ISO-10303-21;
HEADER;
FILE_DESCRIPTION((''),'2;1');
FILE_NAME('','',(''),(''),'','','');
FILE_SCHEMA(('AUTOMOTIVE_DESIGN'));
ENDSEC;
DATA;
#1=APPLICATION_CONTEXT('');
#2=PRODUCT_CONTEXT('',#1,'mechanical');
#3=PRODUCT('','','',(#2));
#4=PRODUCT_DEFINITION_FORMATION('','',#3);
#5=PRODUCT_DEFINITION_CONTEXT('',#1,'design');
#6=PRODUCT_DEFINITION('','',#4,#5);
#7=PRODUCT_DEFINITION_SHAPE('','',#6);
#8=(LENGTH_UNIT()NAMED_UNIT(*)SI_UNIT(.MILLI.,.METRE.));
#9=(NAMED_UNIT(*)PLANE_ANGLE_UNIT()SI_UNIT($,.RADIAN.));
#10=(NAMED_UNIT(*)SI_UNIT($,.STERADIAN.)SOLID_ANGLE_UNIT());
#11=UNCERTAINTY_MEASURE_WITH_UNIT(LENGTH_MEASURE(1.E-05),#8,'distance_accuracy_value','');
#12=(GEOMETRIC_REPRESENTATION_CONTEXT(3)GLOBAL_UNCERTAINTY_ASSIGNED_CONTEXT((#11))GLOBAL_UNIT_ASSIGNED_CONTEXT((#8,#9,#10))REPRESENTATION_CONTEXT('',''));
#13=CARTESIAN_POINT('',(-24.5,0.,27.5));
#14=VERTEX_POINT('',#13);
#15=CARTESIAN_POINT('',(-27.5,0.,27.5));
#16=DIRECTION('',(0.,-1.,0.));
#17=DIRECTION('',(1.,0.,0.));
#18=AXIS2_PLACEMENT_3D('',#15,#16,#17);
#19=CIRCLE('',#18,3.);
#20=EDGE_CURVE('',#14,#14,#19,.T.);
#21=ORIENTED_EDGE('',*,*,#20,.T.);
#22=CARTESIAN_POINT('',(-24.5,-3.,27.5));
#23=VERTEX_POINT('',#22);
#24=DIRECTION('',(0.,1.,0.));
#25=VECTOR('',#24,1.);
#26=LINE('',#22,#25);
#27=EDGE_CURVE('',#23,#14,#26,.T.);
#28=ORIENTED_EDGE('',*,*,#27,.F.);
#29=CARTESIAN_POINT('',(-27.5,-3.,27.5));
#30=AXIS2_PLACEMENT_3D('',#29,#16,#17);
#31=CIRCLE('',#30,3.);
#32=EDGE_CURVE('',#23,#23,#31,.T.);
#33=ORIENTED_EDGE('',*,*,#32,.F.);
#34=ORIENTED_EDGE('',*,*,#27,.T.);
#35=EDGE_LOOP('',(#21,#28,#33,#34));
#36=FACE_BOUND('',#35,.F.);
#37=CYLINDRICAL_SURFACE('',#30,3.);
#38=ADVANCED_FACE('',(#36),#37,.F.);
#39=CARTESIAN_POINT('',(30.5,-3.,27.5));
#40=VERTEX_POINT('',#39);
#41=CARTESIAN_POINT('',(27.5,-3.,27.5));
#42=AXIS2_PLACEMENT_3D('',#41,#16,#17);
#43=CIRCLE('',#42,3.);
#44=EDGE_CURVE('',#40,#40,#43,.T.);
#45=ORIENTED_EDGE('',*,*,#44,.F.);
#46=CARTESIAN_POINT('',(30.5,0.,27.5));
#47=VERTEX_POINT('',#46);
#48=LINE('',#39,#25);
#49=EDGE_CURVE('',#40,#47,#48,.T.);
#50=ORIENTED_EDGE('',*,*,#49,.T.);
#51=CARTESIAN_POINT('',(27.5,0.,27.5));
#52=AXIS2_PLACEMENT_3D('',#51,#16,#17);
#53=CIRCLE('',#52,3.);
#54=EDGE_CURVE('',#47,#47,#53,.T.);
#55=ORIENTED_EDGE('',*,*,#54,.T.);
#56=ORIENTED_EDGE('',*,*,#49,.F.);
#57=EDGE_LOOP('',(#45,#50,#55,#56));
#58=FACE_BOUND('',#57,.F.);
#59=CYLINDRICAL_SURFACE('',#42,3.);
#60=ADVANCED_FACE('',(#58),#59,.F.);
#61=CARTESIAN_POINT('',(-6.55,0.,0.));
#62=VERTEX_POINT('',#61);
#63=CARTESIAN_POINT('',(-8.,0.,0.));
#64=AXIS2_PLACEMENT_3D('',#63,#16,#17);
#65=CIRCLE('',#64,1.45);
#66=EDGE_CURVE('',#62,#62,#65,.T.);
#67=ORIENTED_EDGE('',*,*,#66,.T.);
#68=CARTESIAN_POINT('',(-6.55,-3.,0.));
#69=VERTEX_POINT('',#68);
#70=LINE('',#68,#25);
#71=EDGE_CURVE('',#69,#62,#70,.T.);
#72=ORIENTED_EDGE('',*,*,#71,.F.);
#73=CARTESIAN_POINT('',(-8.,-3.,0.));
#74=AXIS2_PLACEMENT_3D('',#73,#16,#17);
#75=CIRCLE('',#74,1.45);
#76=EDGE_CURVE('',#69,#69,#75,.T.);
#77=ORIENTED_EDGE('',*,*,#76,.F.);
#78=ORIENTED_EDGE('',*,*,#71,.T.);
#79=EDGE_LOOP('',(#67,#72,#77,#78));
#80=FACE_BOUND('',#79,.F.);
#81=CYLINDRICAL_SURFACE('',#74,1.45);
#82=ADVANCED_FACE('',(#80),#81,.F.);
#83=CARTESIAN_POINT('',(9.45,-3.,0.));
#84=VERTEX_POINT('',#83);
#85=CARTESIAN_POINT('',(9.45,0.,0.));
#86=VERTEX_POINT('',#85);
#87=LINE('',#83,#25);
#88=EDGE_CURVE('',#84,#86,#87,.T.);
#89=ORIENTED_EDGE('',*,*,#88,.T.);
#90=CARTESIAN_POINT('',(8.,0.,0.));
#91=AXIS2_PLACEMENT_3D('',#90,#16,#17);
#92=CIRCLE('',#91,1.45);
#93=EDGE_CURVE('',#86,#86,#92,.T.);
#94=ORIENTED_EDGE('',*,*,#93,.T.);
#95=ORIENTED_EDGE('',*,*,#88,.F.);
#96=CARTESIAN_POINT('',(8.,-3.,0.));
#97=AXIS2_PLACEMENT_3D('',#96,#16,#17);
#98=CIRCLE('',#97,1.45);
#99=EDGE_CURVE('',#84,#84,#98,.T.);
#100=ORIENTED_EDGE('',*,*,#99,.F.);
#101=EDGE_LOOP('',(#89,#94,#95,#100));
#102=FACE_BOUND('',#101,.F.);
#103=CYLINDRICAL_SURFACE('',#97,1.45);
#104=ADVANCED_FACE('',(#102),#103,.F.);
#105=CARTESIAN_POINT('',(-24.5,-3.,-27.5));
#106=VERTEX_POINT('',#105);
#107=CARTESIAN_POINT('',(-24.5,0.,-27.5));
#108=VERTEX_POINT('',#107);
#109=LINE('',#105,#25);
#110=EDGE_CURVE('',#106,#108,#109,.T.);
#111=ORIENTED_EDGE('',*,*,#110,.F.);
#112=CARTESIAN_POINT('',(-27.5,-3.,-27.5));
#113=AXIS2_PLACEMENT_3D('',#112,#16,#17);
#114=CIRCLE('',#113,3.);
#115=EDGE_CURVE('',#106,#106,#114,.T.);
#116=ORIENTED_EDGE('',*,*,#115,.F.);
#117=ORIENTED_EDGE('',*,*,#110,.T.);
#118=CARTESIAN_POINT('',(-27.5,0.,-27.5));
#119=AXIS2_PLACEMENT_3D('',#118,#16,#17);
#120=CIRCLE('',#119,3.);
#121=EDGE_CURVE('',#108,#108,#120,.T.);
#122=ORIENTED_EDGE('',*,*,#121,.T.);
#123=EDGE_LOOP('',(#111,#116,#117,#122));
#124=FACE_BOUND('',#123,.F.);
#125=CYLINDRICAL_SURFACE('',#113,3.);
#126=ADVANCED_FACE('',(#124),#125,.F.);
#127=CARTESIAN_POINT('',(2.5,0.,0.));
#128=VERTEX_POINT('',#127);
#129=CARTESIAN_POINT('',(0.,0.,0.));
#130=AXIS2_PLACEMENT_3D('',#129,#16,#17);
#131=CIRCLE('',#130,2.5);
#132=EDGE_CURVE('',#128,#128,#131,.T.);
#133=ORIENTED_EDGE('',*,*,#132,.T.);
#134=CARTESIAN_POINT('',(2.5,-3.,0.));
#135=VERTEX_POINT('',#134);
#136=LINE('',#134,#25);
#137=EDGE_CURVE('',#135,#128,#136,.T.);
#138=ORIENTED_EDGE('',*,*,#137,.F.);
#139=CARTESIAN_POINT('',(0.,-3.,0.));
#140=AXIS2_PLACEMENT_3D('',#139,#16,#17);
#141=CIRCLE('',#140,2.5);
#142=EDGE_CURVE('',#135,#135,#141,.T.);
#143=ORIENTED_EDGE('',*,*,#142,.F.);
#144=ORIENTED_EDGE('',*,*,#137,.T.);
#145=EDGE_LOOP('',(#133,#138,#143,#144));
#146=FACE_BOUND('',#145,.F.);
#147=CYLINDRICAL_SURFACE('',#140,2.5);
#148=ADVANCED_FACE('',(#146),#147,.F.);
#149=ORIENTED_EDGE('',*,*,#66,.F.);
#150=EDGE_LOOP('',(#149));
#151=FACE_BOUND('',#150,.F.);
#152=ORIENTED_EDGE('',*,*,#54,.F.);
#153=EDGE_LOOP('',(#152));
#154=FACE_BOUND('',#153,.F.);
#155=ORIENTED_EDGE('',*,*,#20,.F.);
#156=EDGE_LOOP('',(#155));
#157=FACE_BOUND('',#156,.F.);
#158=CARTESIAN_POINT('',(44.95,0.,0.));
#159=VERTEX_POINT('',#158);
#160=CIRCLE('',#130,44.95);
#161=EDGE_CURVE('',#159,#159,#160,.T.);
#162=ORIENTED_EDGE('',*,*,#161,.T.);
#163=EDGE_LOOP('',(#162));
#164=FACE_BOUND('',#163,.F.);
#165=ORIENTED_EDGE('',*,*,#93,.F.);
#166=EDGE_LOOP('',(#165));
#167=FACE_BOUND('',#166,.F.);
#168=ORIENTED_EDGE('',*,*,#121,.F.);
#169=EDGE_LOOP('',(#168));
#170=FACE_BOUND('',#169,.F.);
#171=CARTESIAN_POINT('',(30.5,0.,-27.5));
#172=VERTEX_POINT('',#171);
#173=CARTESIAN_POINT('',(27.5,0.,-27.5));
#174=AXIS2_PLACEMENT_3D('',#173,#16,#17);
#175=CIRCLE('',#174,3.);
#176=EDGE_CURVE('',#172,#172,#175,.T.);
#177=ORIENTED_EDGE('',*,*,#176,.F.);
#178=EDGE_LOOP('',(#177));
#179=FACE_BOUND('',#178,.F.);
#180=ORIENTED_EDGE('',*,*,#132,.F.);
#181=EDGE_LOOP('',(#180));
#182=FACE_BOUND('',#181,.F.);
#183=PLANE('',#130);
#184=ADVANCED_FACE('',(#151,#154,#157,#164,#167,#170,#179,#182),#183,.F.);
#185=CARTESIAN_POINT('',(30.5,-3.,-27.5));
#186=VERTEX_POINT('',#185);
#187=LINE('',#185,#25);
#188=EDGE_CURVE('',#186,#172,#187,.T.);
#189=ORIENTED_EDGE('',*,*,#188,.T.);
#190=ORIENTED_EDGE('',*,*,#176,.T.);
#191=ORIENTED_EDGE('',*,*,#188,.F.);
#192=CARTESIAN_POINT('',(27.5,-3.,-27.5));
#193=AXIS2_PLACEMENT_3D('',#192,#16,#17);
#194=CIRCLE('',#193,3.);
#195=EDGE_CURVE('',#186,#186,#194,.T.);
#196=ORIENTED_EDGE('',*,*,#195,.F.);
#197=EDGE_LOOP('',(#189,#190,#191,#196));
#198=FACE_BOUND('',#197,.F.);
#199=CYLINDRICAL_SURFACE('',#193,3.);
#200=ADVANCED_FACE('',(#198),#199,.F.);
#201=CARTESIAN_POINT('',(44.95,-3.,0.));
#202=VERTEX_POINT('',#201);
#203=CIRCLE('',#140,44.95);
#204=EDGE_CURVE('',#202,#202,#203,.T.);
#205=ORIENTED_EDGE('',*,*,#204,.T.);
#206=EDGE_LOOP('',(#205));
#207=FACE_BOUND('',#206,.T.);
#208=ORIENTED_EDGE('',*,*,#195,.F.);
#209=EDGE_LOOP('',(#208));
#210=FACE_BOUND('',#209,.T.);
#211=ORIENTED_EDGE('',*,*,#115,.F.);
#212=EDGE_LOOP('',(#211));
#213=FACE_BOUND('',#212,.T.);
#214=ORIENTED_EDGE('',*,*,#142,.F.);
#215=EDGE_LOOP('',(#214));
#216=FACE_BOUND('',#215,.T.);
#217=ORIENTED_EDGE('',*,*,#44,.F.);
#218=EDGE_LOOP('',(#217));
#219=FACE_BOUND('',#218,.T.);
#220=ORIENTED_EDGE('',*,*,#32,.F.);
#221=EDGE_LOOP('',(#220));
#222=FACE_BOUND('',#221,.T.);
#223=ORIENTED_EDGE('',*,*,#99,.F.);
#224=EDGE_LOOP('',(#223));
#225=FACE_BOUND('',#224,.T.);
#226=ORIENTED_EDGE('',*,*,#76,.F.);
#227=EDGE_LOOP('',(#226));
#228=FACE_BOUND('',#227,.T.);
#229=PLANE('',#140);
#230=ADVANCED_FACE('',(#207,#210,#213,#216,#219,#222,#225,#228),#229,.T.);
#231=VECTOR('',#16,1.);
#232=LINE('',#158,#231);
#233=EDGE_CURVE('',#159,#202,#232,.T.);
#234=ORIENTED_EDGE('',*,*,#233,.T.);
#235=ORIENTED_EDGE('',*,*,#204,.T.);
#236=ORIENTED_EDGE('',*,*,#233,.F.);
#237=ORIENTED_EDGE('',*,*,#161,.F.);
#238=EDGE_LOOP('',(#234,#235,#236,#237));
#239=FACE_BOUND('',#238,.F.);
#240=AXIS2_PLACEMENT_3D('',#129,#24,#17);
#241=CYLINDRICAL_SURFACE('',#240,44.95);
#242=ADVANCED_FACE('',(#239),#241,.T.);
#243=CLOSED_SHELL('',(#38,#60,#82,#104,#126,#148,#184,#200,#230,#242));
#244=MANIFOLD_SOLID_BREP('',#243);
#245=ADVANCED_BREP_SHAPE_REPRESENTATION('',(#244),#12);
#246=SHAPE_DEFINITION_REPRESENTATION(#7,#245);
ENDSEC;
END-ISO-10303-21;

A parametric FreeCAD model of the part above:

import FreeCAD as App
import Part
import Sketcher
from FreeCAD import Vector
Q = App.Units.Quantity

doc = App.newDocument("Part")
body = doc.addObject("PartDesign::Body", "Body")

sketch1 = body.newObject("Sketcher::SketchObject", "Sketch")
sketch1.AttachmentSupport = (doc.getObject("XZ_Plane"), [""])
sketch1.MapMode = "FlatFace"
sketch1.addGeometry(Part.Circle(Vector(0, 0, 0), Vector(0, 0, 1), 45), False)
sketch1.addConstraint([
    Sketcher.Constraint("Coincident", 0, 3, -1, 1),
    Sketcher.Constraint("Diameter", 0, Q("89.9 mm")),
])
pad1 = body.newObject("PartDesign::Pad", "Pad")
pad1.Profile = sketch1
pad1.Length = 3

sketch2 = body.newObject("Sketcher::SketchObject", "Sketch001")
sketch2.AttachmentSupport = (doc.getObject("XZ_Plane"), [""])
sketch2.MapMode = "FlatFace"
sketch2.AttachmentOffset = App.Placement(Vector(0, 0, 3), App.Rotation())
sketch2.addGeometry([
    Part.Circle(Vector(-8, 0, 0), Vector(0, 0, 1), 1.4),
    Part.Circle(Vector(8, 0, 0), Vector(0, 0, 1), 1.4),
    Part.Circle(Vector(0, 0, 0), Vector(0, 0, 1), 2.5),
], False)
sketch2.addConstraint([
    Sketcher.Constraint("Coincident", 2, 3, -1, 1),
    Sketcher.Constraint("Equal", 0, 1),
    Sketcher.Constraint("Symmetric", 0, 3, 1, 3, -1, 1),
    Sketcher.Constraint("PointOnObject", 0, 3, -1),
    Sketcher.Constraint("Diameter", 2, Q("5 mm")),
    Sketcher.Constraint("Diameter", 0, Q("2.9 mm")),
    Sketcher.Constraint("DistanceX", 0, 3, -1, 1, Q("8 mm")),
])
pocket1 = body.newObject("PartDesign::Pocket", "Pocket")
pocket1.Profile = sketch2
pocket1.Type = "ThroughAll"

sketch3 = body.newObject("Sketcher::SketchObject", "Sketch002")
sketch3.AttachmentSupport = (doc.getObject("XZ_Plane"), [""])
sketch3.MapMode = "FlatFace"
sketch3.AttachmentOffset = App.Placement(Vector(0, 0, 3), App.Rotation())
sketch3.addGeometry([
    Part.Circle(Vector(-27.5, 27.5, 0), Vector(0, 0, 1), 3),
    Part.Circle(Vector(27.5, 27.5, 0), Vector(0, 0, 1), 3),
    Part.Circle(Vector(-27.5, -27.5, 0), Vector(0, 0, 1), 3),
    Part.Circle(Vector(27.5, -27.5, 0), Vector(0, 0, 1), 3),
], False)
sketch3.addConstraint([
    Sketcher.Constraint("Equal", 0, 1),
    Sketcher.Constraint("Equal", 1, 2),
    Sketcher.Constraint("Equal", 2, 3),
    Sketcher.Constraint("Symmetric", 1, 3, 2, 3, -1, 1),
    Sketcher.Constraint("Symmetric", 0, 3, 3, 3, -1, 1),
    Sketcher.Constraint("Symmetric", 0, 3, 1, 3, -2),
    Sketcher.Constraint("Diameter", 0, Q("6 mm")),
    Sketcher.Constraint("DistanceX", 0, 3, 1, 3, Q("55 mm")),
    Sketcher.Constraint("DistanceY", 2, 3, 0, 3, Q("55 mm")),
])
pocket2 = body.newObject("PartDesign::Pocket", "Pocket001")
pocket2.Profile = sketch3
pocket2.Type = "ThroughAll"

doc.recompute()
